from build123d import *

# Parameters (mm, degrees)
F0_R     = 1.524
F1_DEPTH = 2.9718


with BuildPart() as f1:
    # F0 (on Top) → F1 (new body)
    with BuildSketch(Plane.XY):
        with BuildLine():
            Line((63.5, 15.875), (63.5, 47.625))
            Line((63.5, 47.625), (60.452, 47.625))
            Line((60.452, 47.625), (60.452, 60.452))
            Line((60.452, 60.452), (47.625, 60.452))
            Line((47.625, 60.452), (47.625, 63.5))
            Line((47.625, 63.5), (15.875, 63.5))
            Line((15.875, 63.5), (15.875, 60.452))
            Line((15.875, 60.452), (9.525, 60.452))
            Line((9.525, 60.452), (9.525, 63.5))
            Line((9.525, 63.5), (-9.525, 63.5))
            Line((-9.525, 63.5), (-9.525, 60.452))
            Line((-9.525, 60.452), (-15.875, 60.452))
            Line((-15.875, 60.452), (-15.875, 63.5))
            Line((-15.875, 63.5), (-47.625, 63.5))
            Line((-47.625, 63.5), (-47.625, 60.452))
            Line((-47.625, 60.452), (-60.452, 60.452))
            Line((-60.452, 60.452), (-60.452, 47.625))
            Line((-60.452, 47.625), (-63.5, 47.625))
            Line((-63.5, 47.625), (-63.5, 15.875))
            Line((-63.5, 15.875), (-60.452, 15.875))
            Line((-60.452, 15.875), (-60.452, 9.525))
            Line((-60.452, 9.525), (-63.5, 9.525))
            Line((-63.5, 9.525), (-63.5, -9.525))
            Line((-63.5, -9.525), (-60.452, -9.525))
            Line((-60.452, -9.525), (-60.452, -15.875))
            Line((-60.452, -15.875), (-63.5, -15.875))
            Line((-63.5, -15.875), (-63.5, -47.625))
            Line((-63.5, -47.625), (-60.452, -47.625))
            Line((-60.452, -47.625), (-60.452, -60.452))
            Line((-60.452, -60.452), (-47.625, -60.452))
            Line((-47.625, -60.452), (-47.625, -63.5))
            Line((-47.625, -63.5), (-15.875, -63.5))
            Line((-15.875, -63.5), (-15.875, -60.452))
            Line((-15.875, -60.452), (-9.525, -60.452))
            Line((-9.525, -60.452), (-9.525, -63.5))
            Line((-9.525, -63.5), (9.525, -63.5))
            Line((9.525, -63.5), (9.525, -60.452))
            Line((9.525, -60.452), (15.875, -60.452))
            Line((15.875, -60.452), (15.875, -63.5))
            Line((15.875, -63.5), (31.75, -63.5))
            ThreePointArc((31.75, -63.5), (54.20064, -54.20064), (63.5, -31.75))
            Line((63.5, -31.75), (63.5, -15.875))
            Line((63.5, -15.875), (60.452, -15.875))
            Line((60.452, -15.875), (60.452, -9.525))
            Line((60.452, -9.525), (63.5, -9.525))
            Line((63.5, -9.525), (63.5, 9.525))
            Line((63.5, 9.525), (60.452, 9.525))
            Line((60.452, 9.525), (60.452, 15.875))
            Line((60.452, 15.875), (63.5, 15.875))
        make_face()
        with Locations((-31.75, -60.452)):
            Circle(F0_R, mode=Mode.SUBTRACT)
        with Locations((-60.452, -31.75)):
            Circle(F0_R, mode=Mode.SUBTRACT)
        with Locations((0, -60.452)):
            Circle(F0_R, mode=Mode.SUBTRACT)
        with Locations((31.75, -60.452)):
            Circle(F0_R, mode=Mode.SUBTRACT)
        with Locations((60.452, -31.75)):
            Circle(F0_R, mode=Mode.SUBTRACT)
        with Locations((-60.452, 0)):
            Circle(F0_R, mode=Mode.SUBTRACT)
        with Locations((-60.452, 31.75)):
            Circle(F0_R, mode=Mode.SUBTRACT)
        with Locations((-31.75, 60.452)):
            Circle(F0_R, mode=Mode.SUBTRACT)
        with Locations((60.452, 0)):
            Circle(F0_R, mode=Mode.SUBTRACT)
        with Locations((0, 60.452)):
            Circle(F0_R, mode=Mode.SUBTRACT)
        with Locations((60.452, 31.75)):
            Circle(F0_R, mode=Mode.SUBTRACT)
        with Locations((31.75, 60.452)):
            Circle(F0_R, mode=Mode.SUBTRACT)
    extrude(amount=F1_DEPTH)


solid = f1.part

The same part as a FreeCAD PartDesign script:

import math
import FreeCAD as App
import Part
import Sketcher
from FreeCAD import Vector
Q = App.Units.Quantity

doc = App.newDocument("Part")
params = doc.addObject("Spreadsheet::Sheet", "Params")
for row, (alias, value) in enumerate([
    ("sketch1_diameter", "0.12 in"),
    ("sketch1_radius", "1.25 in"),
    ("sketch1_width", "0.12 in"),
    ("sketch1_width2", "1.25 in"),
    ("sketch1_width3", "0.25 in"),
    ("pad1_length", "0.117 in"),
], start=1):
    params.set(f"A{row}", alias)
    params.set(f"B{row}", "=" + value)
    params.setAlias(f"B{row}", alias)

body = doc.addObject("PartDesign::Body", "Body")

sketch1 = body.newObject("Sketcher::SketchObject", "Sketch")
sketch1.AttachmentSupport = (doc.getObject("XY_Plane"), [""])
sketch1.MapMode = "FlatFace"
sketch1.addGeometry([
    Part.LineSegment(Vector(63.5, 15.9, 0), Vector(63.5, 47.6, 0)),
    Part.LineSegment(Vector(63.5, 47.6, 0), Vector(60.5, 47.6, 0)),
    Part.LineSegment(Vector(60.5, 47.6, 0), Vector(60.5, 60.5, 0)),
    Part.LineSegment(Vector(60.5, 60.5, 0), Vector(47.6, 60.5, 0)),
    Part.LineSegment(Vector(47.6, 60.5, 0), Vector(47.6, 63.5, 0)),
    Part.LineSegment(Vector(47.6, 63.5, 0), Vector(15.9, 63.5, 0)),
    Part.LineSegment(Vector(15.9, 63.5, 0), Vector(15.9, 60.5, 0)),
    Part.LineSegment(Vector(15.9, 60.5, 0), Vector(9.5, 60.5, 0)),
    Part.LineSegment(Vector(9.5, 60.5, 0), Vector(9.5, 63.5, 0)),
    Part.LineSegment(Vector(9.5, 63.5, 0), Vector(-9.5, 63.5, 0)),
    Part.LineSegment(Vector(-9.5, 63.5, 0), Vector(-9.5, 60.5, 0)),
    Part.LineSegment(Vector(-9.5, 60.5, 0), Vector(-15.9, 60.5, 0)),
    Part.LineSegment(Vector(-15.9, 60.5, 0), Vector(-15.9, 63.5, 0)),
    Part.LineSegment(Vector(-15.9, 63.5, 0), Vector(-47.6, 63.5, 0)),
    Part.LineSegment(Vector(-47.6, 63.5, 0), Vector(-47.6, 60.5, 0)),
    Part.LineSegment(Vector(-47.6, 60.5, 0), Vector(-60.5, 60.5, 0)),
    Part.LineSegment(Vector(-60.5, 60.5, 0), Vector(-60.5, 47.6, 0)),
    Part.LineSegment(Vector(-60.5, 47.6, 0), Vector(-63.5, 47.6, 0)),
    Part.LineSegment(Vector(-63.5, 47.6, 0), Vector(-63.5, 15.9, 0)),
    Part.LineSegment(Vector(-63.5, 15.9, 0), Vector(-60.5, 15.9, 0)),
    Part.LineSegment(Vector(-60.5, 15.9, 0), Vector(-60.5, 9.5, 0)),
    Part.LineSegment(Vector(-60.5, 9.5, 0), Vector(-63.5, 9.5, 0)),
    Part.LineSegment(Vector(-63.5, 9.5, 0), Vector(-63.5, -9.5, 0)),
    Part.LineSegment(Vector(-63.5, -9.5, 0), Vector(-60.5, -9.5, 0)),
    Part.LineSegment(Vector(-60.5, -9.5, 0), Vector(-60.5, -15.9, 0)),
    Part.LineSegment(Vector(-60.5, -15.9, 0), Vector(-63.5, -15.9, 0)),
    Part.LineSegment(Vector(-63.5, -15.9, 0), Vector(-63.5, -47.6, 0)),
    Part.LineSegment(Vector(-63.5, -47.6, 0), Vector(-60.5, -47.6, 0)),
    Part.LineSegment(Vector(-60.5, -47.6, 0), Vector(-60.5, -60.5, 0)),
    Part.LineSegment(Vector(-60.5, -60.5, 0), Vector(-47.6, -60.5, 0)),
    Part.LineSegment(Vector(-47.6, -60.5, 0), Vector(-47.6, -63.5, 0)),
    Part.LineSegment(Vector(-47.6, -63.5, 0), Vector(-15.9, -63.5, 0)),
    Part.LineSegment(Vector(-15.9, -63.5, 0), Vector(-15.9, -60.5, 0)),
    Part.LineSegment(Vector(-15.9, -60.5, 0), Vector(-9.5, -60.5, 0)),
    Part.LineSegment(Vector(-9.5, -60.5, 0), Vector(-9.5, -63.5, 0)),
    Part.LineSegment(Vector(-9.5, -63.5, 0), Vector(9.5, -63.5, 0)),
    Part.LineSegment(Vector(9.5, -63.5, 0), Vector(9.5, -60.5, 0)),
    Part.LineSegment(Vector(9.5, -60.5, 0), Vector(15.9, -60.5, 0)),
    Part.LineSegment(Vector(15.9, -60.5, 0), Vector(15.9, -63.5, 0)),
    Part.LineSegment(Vector(15.9, -63.5, 0), Vector(31.8, -63.5, 0)),
    Part.ArcOfCircle(Part.Circle(Vector(31.7, -31.7, 0), Vector(0, 0, 1), 31.8), math.radians(-90), math.radians(0)),
    Part.LineSegment(Vector(63.5, -31.8, 0), Vector(63.5, -15.9, 0)),
    Part.LineSegment(Vector(63.5, -15.9, 0), Vector(60.5, -15.9, 0)),
    Part.LineSegment(Vector(60.5, -15.9, 0), Vector(60.5, -9.5, 0)),
    Part.LineSegment(Vector(60.5, -9.5, 0), Vector(63.5, -9.5, 0)),
    Part.LineSegment(Vector(63.5, -9.5, 0), Vector(63.5, 9.5, 0)),
    Part.LineSegment(Vector(63.5, 9.5, 0), Vector(60.5, 9.5, 0)),
    Part.LineSegment(Vector(60.5, 9.5, 0), Vector(60.5, 15.9, 0)),
    Part.LineSegment(Vector(60.5, 15.9, 0), Vector(63.5, 15.9, 0)),
    Part.Circle(Vector(-31.8, -60.5, 0), Vector(0, 0, 1), 1.5),
    Part.Circle(Vector(-60.5, -31.8, 0), Vector(0, 0, 1), 1.5),
    Part.Circle(Vector(0, -60.5, 0), Vector(0, 0, 1), 1.5),
    Part.Circle(Vector(-60.5, 0, 0), Vector(0, 0, 1), 1.5),
    Part.Circle(Vector(31.8, -60.5, 0), Vector(0, 0, 1), 1.5),
    Part.Circle(Vector(60.5, -31.8, 0), Vector(0, 0, 1), 1.5),
    Part.Circle(Vector(60.5, 0, 0), Vector(0, 0, 1), 1.5),
    Part.Circle(Vector(-60.5, 31.8, 0), Vector(0, 0, 1), 1.5),
    Part.Circle(Vector(-31.8, 60.5, 0), Vector(0, 0, 1), 1.5),
    Part.Circle(Vector(0, 60.5, 0), Vector(0, 0, 1), 1.5),
    Part.Circle(Vector(60.5, 31.8, 0), Vector(0, 0, 1), 1.5),
    Part.Circle(Vector(31.8, 60.5, 0), Vector(0, 0, 1), 1.5),
], False)
sketch1.addConstraint([
    Sketcher.Constraint("Coincident", 0, 2, 1, 1),
    Sketcher.Constraint("Coincident", 1, 2, 2, 1),
    Sketcher.Constraint("Coincident", 2, 2, 3, 1),
    Sketcher.Constraint("Coincident", 3, 2, 4, 1),
    Sketcher.Constraint("Coincident", 4, 2, 5, 1),
    Sketcher.Constraint("Coincident", 5, 2, 6, 1),
    Sketcher.Constraint("Coincident", 6, 2, 7, 1),
    Sketcher.Constraint("Coincident", 7, 2, 8, 1),
    Sketcher.Constraint("Coincident", 8, 2, 9, 1),
    Sketcher.Constraint("Coincident", 9, 2, 10, 1),
    Sketcher.Constraint("Coincident", 10, 2, 11, 1),
    Sketcher.Constraint("Coincident", 11, 2, 12, 1),
    Sketcher.Constraint("Coincident", 12, 2, 13, 1),
    Sketcher.Constraint("Coincident", 13, 2, 14, 1),
    Sketcher.Constraint("Coincident", 14, 2, 15, 1),
    Sketcher.Constraint("Coincident", 15, 2, 16, 1),
    Sketcher.Constraint("Coincident", 16, 2, 17, 1),
    Sketcher.Constraint("Coincident", 17, 2, 18, 1),
    Sketcher.Constraint("Coincident", 18, 2, 19, 1),
    Sketcher.Constraint("Coincident", 19, 2, 20, 1),
    Sketcher.Constraint("Coincident", 20, 2, 21, 1),
    Sketcher.Constraint("Coincident", 21, 2, 22, 1),
    Sketcher.Constraint("Coincident", 22, 2, 23, 1),
    Sketcher.Constraint("Coincident", 23, 2, 24, 1),
    Sketcher.Constraint("Coincident", 24, 2, 25, 1),
    Sketcher.Constraint("Coincident", 25, 2, 26, 1),
    Sketcher.Constraint("Coincident", 26, 2, 27, 1),
    Sketcher.Constraint("Coincident", 27, 2, 28, 1),
    Sketcher.Constraint("Coincident", 28, 2, 29, 1),
    Sketcher.Constraint("Coincident", 29, 2, 30, 1),
    Sketcher.Constraint("Coincident", 30, 2, 31, 1),
    Sketcher.Constraint("Coincident", 31, 2, 32, 1),
    Sketcher.Constraint("Coincident", 32, 2, 33, 1),
    Sketcher.Constraint("Coincident", 33, 2, 34, 1),
    Sketcher.Constraint("Coincident", 34, 2, 35, 1),
    Sketcher.Constraint("Coincident", 35, 2, 36, 1),
    Sketcher.Constraint("Coincident", 36, 2, 37, 1),
    Sketcher.Constraint("Coincident", 37, 2, 38, 1),
    Sketcher.Constraint("Coincident", 38, 2, 39, 1),
    Sketcher.Constraint("Tangent", 39, 2, 40, 1),
    Sketcher.Constraint("Tangent", 40, 2, 41, 1),
    Sketcher.Constraint("Coincident", 41, 2, 42, 1),
    Sketcher.Constraint("Coincident", 42, 2, 43, 1),
    Sketcher.Constraint("Coincident", 43, 2, 44, 1),
    Sketcher.Constraint("Coincident", 44, 2, 45, 1),
    Sketcher.Constraint("Coincident", 45, 2, 46, 1),
    Sketcher.Constraint("Coincident", 46, 2, 47, 1),
    Sketcher.Constraint("Coincident", 47, 2, 48, 1),
    Sketcher.Constraint("Coincident", 48, 2, 0, 1),
    Sketcher.Constraint("Vertical", 0),
    Sketcher.Constraint("Horizontal", 1),
    Sketcher.Constraint("Vertical", 2),
    Sketcher.Constraint("Horizontal", 3),
    Sketcher.Constraint("Vertical", 4),
    Sketcher.Constraint("Horizontal", 5),
    Sketcher.Constraint("Vertical", 6),
    Sketcher.Constraint("Horizontal", 7),
    Sketcher.Constraint("Vertical", 8),
    Sketcher.Constraint("Horizontal", 9),
    Sketcher.Constraint("Vertical", 10),
    Sketcher.Constraint("Horizontal", 11),
    Sketcher.Constraint("Vertical", 12),
    Sketcher.Constraint("Horizontal", 13),
    Sketcher.Constraint("Vertical", 14),
    Sketcher.Constraint("Horizontal", 15),
    Sketcher.Constraint("Vertical", 16),
    Sketcher.Constraint("Horizontal", 17),
    Sketcher.Constraint("Vertical", 18),
    Sketcher.Constraint("Horizontal", 19),
    Sketcher.Constraint("Vertical", 20),
    Sketcher.Constraint("Horizontal", 21),
    Sketcher.Constraint("Vertical", 22),
    Sketcher.Constraint("Horizontal", 23),
    Sketcher.Constraint("Vertical", 24),
    Sketcher.Constraint("Horizontal", 25),
    Sketcher.Constraint("Vertical", 26),
    Sketcher.Constraint("Horizontal", 27),
    Sketcher.Constraint("Vertical", 28),
    Sketcher.Constraint("Horizontal", 29),
    Sketcher.Constraint("Vertical", 30),
    Sketcher.Constraint("Horizontal", 31),
    Sketcher.Constraint("Vertical", 32),
    Sketcher.Constraint("Horizontal", 33),
    Sketcher.Constraint("Vertical", 34),
    Sketcher.Constraint("Horizontal", 35),
    Sketcher.Constraint("Vertical", 36),
    Sketcher.Constraint("Horizontal", 37),
    Sketcher.Constraint("Vertical", 38),
    Sketcher.Constraint("Horizontal", 39),
    Sketcher.Constraint("Vertical", 41),
    Sketcher.Constraint("Horizontal", 42),
    Sketcher.Constraint("Vertical", 43),
    Sketcher.Constraint("Horizontal", 44),
    Sketcher.Constraint("Vertical", 45),
    Sketcher.Constraint("Horizontal", 46),
    Sketcher.Constraint("Vertical", 47),
    Sketcher.Constraint("Horizontal", 48),
    Sketcher.Constraint("Equal", 49, 50),
    Sketcher.Constraint("Equal", 50, 51),
    Sketcher.Constraint("Equal", 51, 52),
    Sketcher.Constraint("Equal", 52, 53),
    Sketcher.Constraint("Equal", 53, 54),
    Sketcher.Constraint("Equal", 54, 55),
    Sketcher.Constraint("Equal", 55, 56),
    Sketcher.Constraint("Equal", 56, 57),
    Sketcher.Constraint("Equal", 57, 58),
    Sketcher.Constraint("Equal", 58, 59),
    Sketcher.Constraint("Equal", 59, 60),
    Sketcher.Constraint("Symmetric", 52, 3, 55, 3, -1, 1),
    Sketcher.Constraint("Symmetric", 54, 3, 56, 3, -1, 1),
    Sketcher.Constraint("Symmetric", 53, 3, 57, 3, -1, 1),
    Sketcher.Constraint("Symmetric", 51, 3, 58, 3, -1, 1),
    Sketcher.Constraint("Symmetric", 50, 3, 59, 3, -1, 1),
    Sketcher.Constraint("Symmetric", 49, 3, 60, 3, -1, 1),
    Sketcher.Constraint("Symmetric", 0, 2, 26, 2, -1, 1),
    Sketcher.Constraint("Symmetric", 2, 2, 28, 2, -1, 1),
    Sketcher.Constraint("Symmetric", 4, 2, 30, 2, -1, 1),
    Sketcher.Constraint("Symmetric", 6, 2, 32, 2, -1, 1),
    Sketcher.Constraint("Symmetric", 8, 2, 34, 2, -1, 1),
    Sketcher.Constraint("Symmetric", 10, 2, 36, 2, -1, 1),
    Sketcher.Constraint("Symmetric", 12, 2, 38, 2, -1, 1),
    Sketcher.Constraint("Symmetric", 18, 2, 41, 2, -1, 1),
    Sketcher.Constraint("Symmetric", 20, 2, 43, 2, -1, 1),
    Sketcher.Constraint("Symmetric", 22, 2, 45, 2, -1, 1),
    Sketcher.Constraint("Symmetric", 24, 2, 47, 2, -1, 1),
    Sketcher.Constraint("Symmetric", 49, 3, 53, 3, -2),
    Sketcher.Constraint("Symmetric", 50, 3, 54, 3, -2),
    Sketcher.Constraint("Symmetric", 7, 2, 10, 2, -2),
    Sketcher.Constraint("Symmetric", 5, 2, 12, 2, -2),
    Sketcher.Constraint("Symmetric", 3, 2, 14, 2, -2),
    Sketcher.Constraint("Symmetric", 1, 2, 16, 2, -2),
    Sketcher.Constraint("Symmetric", 25, 2, 41, 2, -2),
    Sketcher.Constraint("Symmetric", 23, 2, 43, 2, -2),
    Sketcher.Constraint("PointOnObject", 51, 3, -2),
    Sketcher.Constraint("PointOnObject", 52, 3, -1),
    Sketcher.Constraint("Horizontal", 40, 3, 50, 3),
    Sketcher.Constraint("Horizontal", 49, 3, 51, 3),
    Sketcher.Constraint("Horizontal", 60, 3, 2, 2),
    Sketcher.Constraint("Horizontal", 3, 2, 6, 2),
    Sketcher.Constraint("Horizontal", 5, 2, 8, 2),
    Sketcher.Constraint("Vertical", 50, 3, 52, 3),
    Sketcher.Constraint("Vertical", 40, 3, 53, 3),
    Sketcher.Constraint("Vertical", 59, 3, 1, 2),
    Sketcher.Constraint("Vertical", 16, 2, 19, 2),
    Sketcher.Constraint("Vertical", 18, 2, 21, 2),
    Sketcher.Constraint("Equal", 31, 0),
    Sketcher.Constraint("Equal", 29, 2),
    Sketcher.Constraint("Equal", 48, 4),
    Sketcher.Constraint("Equal", 37, 20),
    Sketcher.Constraint("Equal", 35, 22),
    Sketcher.Constraint("Diameter", 49, Q("0.12 in")),
    Sketcher.Constraint("Radius", 40, Q("1.25 in")),
    Sketcher.Constraint("DistanceX", 1, 2, 1, 1, Q("0.12 in")),
    Sketcher.Constraint("DistanceX", 5, 2, 5, 1, Q("1.25 in")),
    Sketcher.Constraint("DistanceX", 7, 2, 7, 1, Q("0.25 in")),
    Sketcher.Constraint("DistanceX", 9, 2, 9, 1, Q("0.75 in")),
    Sketcher.Constraint("DistanceX", -1, 1, 0, 2, Q("2.5 in")),
])
sketch1.setExpression("Constraints[150]", "Params.sketch1_diameter")
sketch1.setExpression("Constraints[151]", "Params.sketch1_radius")
sketch1.setExpression("Constraints[152]", "Params.sketch1_width")
sketch1.setExpression("Constraints[153]", "Params.sketch1_width2")
sketch1.setExpression("Constraints[154]", "Params.sketch1_width3")
pad1 = body.newObject("PartDesign::Pad", "Pad")
pad1.Profile = sketch1
pad1.setExpression("Length", "Params.pad1_length")

doc.recompute()
